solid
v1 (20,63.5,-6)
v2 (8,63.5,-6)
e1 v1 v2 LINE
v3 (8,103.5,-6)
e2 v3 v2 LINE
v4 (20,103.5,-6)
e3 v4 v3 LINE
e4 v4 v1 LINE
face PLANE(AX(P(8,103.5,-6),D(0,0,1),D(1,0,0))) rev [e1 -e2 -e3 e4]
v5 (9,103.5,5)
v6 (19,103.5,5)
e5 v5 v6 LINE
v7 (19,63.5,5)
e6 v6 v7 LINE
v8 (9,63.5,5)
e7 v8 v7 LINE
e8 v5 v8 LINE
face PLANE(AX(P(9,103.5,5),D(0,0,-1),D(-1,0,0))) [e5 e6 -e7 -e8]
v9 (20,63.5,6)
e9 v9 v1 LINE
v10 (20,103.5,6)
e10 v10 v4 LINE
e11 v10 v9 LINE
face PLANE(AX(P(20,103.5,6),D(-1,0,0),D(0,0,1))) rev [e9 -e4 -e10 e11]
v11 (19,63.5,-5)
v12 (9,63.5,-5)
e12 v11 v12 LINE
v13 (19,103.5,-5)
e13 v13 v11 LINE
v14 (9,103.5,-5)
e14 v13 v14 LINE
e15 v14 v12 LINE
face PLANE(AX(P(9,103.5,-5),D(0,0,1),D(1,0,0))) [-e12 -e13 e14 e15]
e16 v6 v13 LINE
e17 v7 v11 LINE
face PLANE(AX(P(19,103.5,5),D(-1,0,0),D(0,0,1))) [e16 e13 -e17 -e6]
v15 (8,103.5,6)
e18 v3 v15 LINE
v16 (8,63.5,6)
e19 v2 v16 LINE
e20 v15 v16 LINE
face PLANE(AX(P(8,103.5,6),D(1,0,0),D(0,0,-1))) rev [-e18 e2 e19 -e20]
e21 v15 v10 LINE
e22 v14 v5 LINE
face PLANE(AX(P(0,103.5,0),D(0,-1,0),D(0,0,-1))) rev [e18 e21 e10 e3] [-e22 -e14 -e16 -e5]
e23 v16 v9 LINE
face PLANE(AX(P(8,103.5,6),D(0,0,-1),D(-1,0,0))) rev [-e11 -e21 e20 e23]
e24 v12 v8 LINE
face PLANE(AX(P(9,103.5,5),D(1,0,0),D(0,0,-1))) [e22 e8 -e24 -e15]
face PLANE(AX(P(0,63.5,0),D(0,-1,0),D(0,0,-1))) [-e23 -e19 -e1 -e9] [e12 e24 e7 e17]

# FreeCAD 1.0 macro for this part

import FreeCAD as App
import Part
import Sketcher

V = App.Vector

doc = App.newDocument("Part")
params = doc.addObject("Spreadsheet::Sheet", "Params")
for row, (alias, value) in enumerate([
    ("sketch1_width", "12 mm"),
    ("pad1_length", "40 mm"),
    ("sketch2_width", "10 mm"),
], start=1):
    params.set(f"A{row}", alias)
    params.set(f"B{row}", "=" + value)
    params.setAlias(f"B{row}", alias)

body = doc.addObject("PartDesign::Body", "Body")

sketch1 = body.newObject("Sketcher::SketchObject", "Sketch")
sketch1.AttachmentSupport = (doc.getObject("XZ_Plane"), [""])
sketch1.MapMode = "FlatFace"
sketch1.AttachmentOffset = App.Placement(V(0, 0, -63.5), App.Rotation())
sketch1.addGeometry([
    Part.LineSegment(V(8, -6, 0), V(8, 6, 0)),
    Part.LineSegment(V(8, 6, 0), V(20, 6, 0)),
    Part.LineSegment(V(20, 6, 0), V(20, -6, 0)),
    Part.LineSegment(V(20, -6, 0), V(8, -6, 0)),
], False)
sketch1.addConstraint([
    Sketcher.Constraint("Coincident", 0, 2, 1, 1),
    Sketcher.Constraint("Coincident", 1, 2, 2, 1),
    Sketcher.Constraint("Coincident", 2, 2, 3, 1),
    Sketcher.Constraint("Coincident", 3, 2, 0, 1),
    Sketcher.Constraint("Vertical", 0),
    Sketcher.Constraint("Horizontal", 1),
    Sketcher.Constraint("Vertical", 2),
    Sketcher.Constraint("Horizontal", 3),
    Sketcher.Constraint("Equal", 3, 0),
    Sketcher.Constraint("DistanceX", 1, 1, 1, 2, 12.0),
    Sketcher.Constraint("DistanceX", -1, 1, 0, 2, 8.0),
    Sketcher.Constraint("DistanceY", -1, 1, 0, 2, 6.0),
])
sketch1.setExpression("Constraints[9]", "Params.sketch1_width")
pad1 = body.newObject("PartDesign::Pad", "Pad")
pad1.Profile = sketch1
pad1.setExpression("Length", "Params.pad1_length")
pad1.Reversed = True

sketch2 = body.newObject("Sketcher::SketchObject", "Sketch001")
sketch2.AttachmentSupport = (doc.getObject("XZ_Plane"), [""])
sketch2.MapMode = "FlatFace"
sketch2.addGeometry([
    Part.LineSegment(V(9, -5, 0), V(9, 5, 0)),
    Part.LineSegment(V(9, 5, 0), V(19, 5, 0)),
    Part.LineSegment(V(19, 5, 0), V(19, -5, 0)),
    Part.LineSegment(V(19, -5, 0), V(9, -5, 0)),
], False)
sketch2.addConstraint([
    Sketcher.Constraint("Coincident", 0, 2, 1, 1),
    Sketcher.Constraint("Coincident", 1, 2, 2, 1),
    Sketcher.Constraint("Coincident", 2, 2, 3, 1),
    Sketcher.Constraint("Coincident", 3, 2, 0, 1),
    Sketcher.Constraint("Vertical", 0),
    Sketcher.Constraint("Horizontal", 1),
    Sketcher.Constraint("Vertical", 2),
    Sketcher.Constraint("Horizontal", 3),
    Sketcher.Constraint("Equal", 3, 0),
    Sketcher.Constraint("DistanceX", 1, 1, 1, 2, 10.0),
    Sketcher.Constraint("DistanceX", -1, 1, 0, 2, 9.0),
    Sketcher.Constraint("DistanceY", -1, 1, 0, 2, 5.0),
])
sketch2.setExpression("Constraints[9]", "Params.sketch2_width")
pocket1 = body.newObject("PartDesign::Pocket", "Pocket")
pocket1.Profile = sketch2
pocket1.Type = "ThroughAll"
pocket1.Midplane = True

doc.recompute()
